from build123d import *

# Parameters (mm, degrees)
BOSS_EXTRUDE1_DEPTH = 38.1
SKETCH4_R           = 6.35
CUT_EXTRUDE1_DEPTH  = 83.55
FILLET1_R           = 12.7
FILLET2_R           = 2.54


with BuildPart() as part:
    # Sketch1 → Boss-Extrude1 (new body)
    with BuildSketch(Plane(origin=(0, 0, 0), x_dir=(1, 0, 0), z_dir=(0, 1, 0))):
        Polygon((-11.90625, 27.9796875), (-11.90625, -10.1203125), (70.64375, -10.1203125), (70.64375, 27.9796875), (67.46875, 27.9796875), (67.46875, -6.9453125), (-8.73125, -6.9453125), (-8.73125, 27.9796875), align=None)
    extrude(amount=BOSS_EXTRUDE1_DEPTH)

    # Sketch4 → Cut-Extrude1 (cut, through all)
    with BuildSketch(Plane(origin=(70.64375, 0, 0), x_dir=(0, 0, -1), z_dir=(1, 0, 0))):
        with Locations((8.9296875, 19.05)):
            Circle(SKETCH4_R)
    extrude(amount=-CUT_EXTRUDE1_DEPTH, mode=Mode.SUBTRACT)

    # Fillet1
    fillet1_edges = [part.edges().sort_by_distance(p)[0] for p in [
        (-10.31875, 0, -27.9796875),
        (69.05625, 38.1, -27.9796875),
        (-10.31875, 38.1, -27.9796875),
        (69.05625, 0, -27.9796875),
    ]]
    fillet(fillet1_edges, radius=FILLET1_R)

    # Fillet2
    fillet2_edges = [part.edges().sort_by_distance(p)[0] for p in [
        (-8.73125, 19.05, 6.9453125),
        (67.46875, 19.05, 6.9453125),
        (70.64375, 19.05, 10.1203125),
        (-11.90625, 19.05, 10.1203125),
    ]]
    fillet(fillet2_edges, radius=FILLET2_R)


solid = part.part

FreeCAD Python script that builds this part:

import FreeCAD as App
import Part
import Sketcher
from FreeCAD import Vector
Q = App.Units.Quantity


def edges_at(feature, points):
    """Names of the edges that pass closest to the given points."""
    edges = feature.Shape.Edges
    near = lambda p: min(range(len(edges)), key=lambda i: edges[i].distToShape(Part.Vertex(*p))[0])
    return sorted({f"Edge{near(p) + 1}" for p in points})

doc = App.newDocument("Part")
params = doc.addObject("Spreadsheet::Sheet", "Params")
for row, (alias, value) in enumerate([
    ("sketch1_width", "3 in"),
    ("sketch1_height", "1.5 in"),
    ("sketch1_width2", "3.25 in"),
    ("sketch1_height2", "1.375 in"),
    ("pad1_length", "1.5 in"),
    ("sketch2_diameter", "0.5 in"),
    ("fillet_radius", "0.5 in"),
    ("fillet2_radius", "0.1 in"),
], start=1):
    params.set(f"A{row}", alias)
    params.set(f"B{row}", "=" + value)
    params.setAlias(f"B{row}", alias)

body = doc.addObject("PartDesign::Body", "Body")

sketch1 = body.newObject("Sketcher::SketchObject", "Sketch")
sketch1.AttachmentSupport = (doc.getObject("XZ_Plane"), [""])
sketch1.MapMode = "FlatFace"
sketch1.addGeometry(Part.LineSegment(Vector(-11.90625, -27.979688, 0), Vector(-11.90625, 10.120313, 0)), False)
sketch1.addGeometry(Part.LineSegment(Vector(-11.90625, 10.120313, 0), Vector(70.64375, 10.120313, 0)), False)
sketch1.addGeometry(Part.LineSegment(Vector(70.64375, 10.120313, 0), Vector(70.64375, -27.979688, 0)), False)
sketch1.addGeometry(Part.LineSegment(Vector(70.64375, -27.979688, 0), Vector(67.46875, -27.979688, 0)), False)
sketch1.addGeometry(Part.LineSegment(Vector(67.46875, -27.979688, 0), Vector(67.46875, 6.945312, 0)), False)
sketch1.addGeometry(Part.LineSegment(Vector(67.46875, 6.945312, 0), Vector(-8.73125, 6.945312, 0)), False)
sketch1.addGeometry(Part.LineSegment(Vector(-8.73125, 6.945312, 0), Vector(-8.73125, -27.979688, 0)), False)
sketch1.addGeometry(Part.LineSegment(Vector(-8.73125, -27.979688, 0), Vector(-11.90625, -27.979688, 0)), False)
sketch1.addConstraint(Sketcher.Constraint("Coincident", 0, 2, 1, 1))
sketch1.addConstraint(Sketcher.Constraint("Coincident", 1, 2, 2, 1))
sketch1.addConstraint(Sketcher.Constraint("Coincident", 2, 2, 3, 1))
sketch1.addConstraint(Sketcher.Constraint("Coincident", 3, 2, 4, 1))
sketch1.addConstraint(Sketcher.Constraint("Coincident", 4, 2, 5, 1))
sketch1.addConstraint(Sketcher.Constraint("Coincident", 5, 2, 6, 1))
sketch1.addConstraint(Sketcher.Constraint("Coincident", 6, 2, 7, 1))
sketch1.addConstraint(Sketcher.Constraint("Coincident", 7, 2, 0, 1))
sketch1.addConstraint(Sketcher.Constraint("Vertical", 0))
sketch1.addConstraint(Sketcher.Constraint("Horizontal", 1))
sketch1.addConstraint(Sketcher.Constraint("Vertical", 2))
sketch1.addConstraint(Sketcher.Constraint("Horizontal", 3))
sketch1.addConstraint(Sketcher.Constraint("Vertical", 4))
sketch1.addConstraint(Sketcher.Constraint("Horizontal", 5))
sketch1.addConstraint(Sketcher.Constraint("Vertical", 6))
sketch1.addConstraint(Sketcher.Constraint("Horizontal", 7))
sketch1.addConstraint(Sketcher.Constraint("Horizontal", 3, 2, 6, 2))
sketch1.addConstraint(Sketcher.Constraint("Equal", 3, 7))
sketch1.addConstraint(Sketcher.Constraint("DistanceX", 5, 2, 5, 1, Q("3 in")))
sketch1.addConstraint(Sketcher.Constraint("DistanceY", 0, 1, 0, 2, Q("1.5 in")))
sketch1.addConstraint(Sketcher.Constraint("DistanceX", 1, 1, 1, 2, Q("3.25 in")))
sketch1.addConstraint(Sketcher.Constraint("DistanceY", 4, 1, 4, 2, Q("1.375 in")))
sketch1.addConstraint(Sketcher.Constraint("DistanceX", 0, 2, -1, 1, Q("0.46875 in")))
sketch1.addConstraint(Sketcher.Constraint("DistanceY", -1, 1, 0, 2, Q("10.120313 mm")))
sketch1.setExpression("Constraints[18]", "Params.sketch1_width")
sketch1.setExpression("Constraints[19]", "Params.sketch1_height")
sketch1.setExpression("Constraints[20]", "Params.sketch1_width2")
sketch1.setExpression("Constraints[21]", "Params.sketch1_height2")
pad1 = body.newObject("PartDesign::Pad", "Pad")
pad1.Profile = sketch1
pad1.setExpression("Length", "Params.pad1_length")
pad1.Reversed = True

sketch2 = body.newObject("Sketcher::SketchObject", "Sketch001")
sketch2.AttachmentSupport = (doc.getObject("YZ_Plane"), [""])
sketch2.MapMode = "FlatFace"
sketch2.AttachmentOffset = App.Placement(Vector(0, 0, 2.78125 * 25.4), App.Rotation())
sketch2.addGeometry(Part.Circle(Vector(19.05, -8.929688, 0), Vector(0, 0, 1), 6.35), False)
sketch2.addConstraint(Sketcher.Constraint("Diameter", 0, Q("0.5 in")))
sketch2.addConstraint(Sketcher.Constraint("DistanceX", -1, 1, 0, 3, Q("0.75 in")))
sketch2.addConstraint(Sketcher.Constraint("DistanceY", 0, 3, -1, 1, Q("8.929688 mm")))
sketch2.setExpression("Constraints[0]", "Params.sketch2_diameter")
pocket1 = body.newObject("PartDesign::Pocket", "Pocket")
pocket1.Profile = sketch2
pocket1.Type = "ThroughAll"
doc.recompute()

fillet = body.newObject("PartDesign::Fillet", "Fillet")
fillet.Base = (pocket1, edges_at(pocket1, [
    (-10.319, 0, -27.98),
    (69.056, 38.1, -27.98),
    (-10.319, 38.1, -27.98),
    (69.056, 0, -27.98),
]))
fillet.setExpression("Radius", "Params.fillet_radius")
doc.recompute()

fillet2 = body.newObject("PartDesign::Fillet", "Fillet001")
fillet2.Base = (fillet, edges_at(fillet, [
    (-8.731, 19.05, 6.945),
    (67.469, 19.05, 6.945),
    (70.644, 19.05, 10.12),
    (-11.906, 19.05, 10.12),
]))
fillet2.setExpression("Radius", "Params.fillet2_radius")

doc.recompute()
